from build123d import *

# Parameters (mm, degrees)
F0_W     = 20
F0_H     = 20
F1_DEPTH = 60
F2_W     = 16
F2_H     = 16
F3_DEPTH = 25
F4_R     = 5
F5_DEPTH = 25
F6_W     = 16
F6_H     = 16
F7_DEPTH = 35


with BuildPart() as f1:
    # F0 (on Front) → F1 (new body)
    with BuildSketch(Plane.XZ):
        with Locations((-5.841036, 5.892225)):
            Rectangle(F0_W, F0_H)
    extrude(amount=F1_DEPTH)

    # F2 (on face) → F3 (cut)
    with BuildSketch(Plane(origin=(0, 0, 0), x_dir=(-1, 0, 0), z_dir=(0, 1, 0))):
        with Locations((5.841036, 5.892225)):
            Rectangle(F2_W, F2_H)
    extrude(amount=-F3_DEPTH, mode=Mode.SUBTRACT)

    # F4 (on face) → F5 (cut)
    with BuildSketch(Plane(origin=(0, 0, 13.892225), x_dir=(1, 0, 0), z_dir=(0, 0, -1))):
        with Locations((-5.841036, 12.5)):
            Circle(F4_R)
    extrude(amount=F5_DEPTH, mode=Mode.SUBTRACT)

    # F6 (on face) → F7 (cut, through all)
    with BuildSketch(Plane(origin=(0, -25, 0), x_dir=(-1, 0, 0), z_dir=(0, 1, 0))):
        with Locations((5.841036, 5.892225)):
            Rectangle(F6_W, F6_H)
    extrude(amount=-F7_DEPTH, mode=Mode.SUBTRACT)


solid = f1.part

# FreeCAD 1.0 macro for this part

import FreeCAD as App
import Part
import Sketcher

V = App.Vector
Q = App.Units.Quantity


def add_polygon(sketch, points):
    """Adds a closed chain of lines whose ends are joined by coincident constraints."""
    first, n = sketch.GeometryCount, len(points)
    for a, b in zip(points, points[1:] + points[:1]):
        sketch.addGeometry(Part.LineSegment(App.Vector(*a, 0), App.Vector(*b, 0)), False)
    for i in range(n):
        sketch.addConstraint(Sketcher.Constraint("Coincident", first + i, 2, first + (i + 1) % n, 1))

doc = App.newDocument("Part")
body = doc.addObject("PartDesign::Body", "Body")

# Sketch on XZ plane
sketch1 = doc.addObject("Sketcher::SketchObject", "Sketch")
body.addObject(sketch1)
sketch1.AttachmentSupport = (doc.XZ_Plane, [""])
sketch1.MapMode = "FlatFace"
add_polygon(sketch1, [(-15.841036, 15.892225), (-15.841036, -4.107775), (4.158964, -4.107775), (4.158964, 15.892225)])  # lines 0-3
sketch1.addConstraint(Sketcher.Constraint("Vertical", 0))
sketch1.addConstraint(Sketcher.Constraint("Horizontal", 1))
sketch1.addConstraint(Sketcher.Constraint("Vertical", 2))
sketch1.addConstraint(Sketcher.Constraint("Horizontal", 3))
sketch1.addConstraint(Sketcher.Constraint("Equal", 3, 0))
sketch1.addConstraint(Sketcher.Constraint("DistanceX", 1, 1, 1, 2, Q("20 mm")))
sketch1.addConstraint(Sketcher.Constraint("DistanceX", 0, 2, -1, 1, Q("15.841036 mm")))
sketch1.addConstraint(Sketcher.Constraint("DistanceY", 0, 2, -1, 1, Q("4.107775 mm")))
pad1 = doc.addObject("PartDesign::Pad", "Pad")
body.addObject(pad1)
pad1.Profile = sketch1
pad1.Length = 60

# Sketch on XZ plane
sketch2 = doc.addObject("Sketcher::SketchObject", "Sketch001")
body.addObject(sketch2)
sketch2.AttachmentSupport = (doc.XZ_Plane, [""])
sketch2.MapMode = "FlatFace"
add_polygon(sketch2, [(2.158964, 13.892225), (2.158964, -2.107775), (-13.841036, -2.107775), (-13.841036, 13.892225)])  # lines 0-3
sketch2.addConstraint(Sketcher.Constraint("Vertical", 0))
sketch2.addConstraint(Sketcher.Constraint("Horizontal", 1))
sketch2.addConstraint(Sketcher.Constraint("Vertical", 2))
sketch2.addConstraint(Sketcher.Constraint("Horizontal", 3))
sketch2.addConstraint(Sketcher.Constraint("Equal", 3, 0))
sketch2.addConstraint(Sketcher.Constraint("DistanceX", 1, 2, 1, 1, Q("16 mm")))
sketch2.addConstraint(Sketcher.Constraint("DistanceX", -1, 1, 0, 2, Q("2.158964 mm")))
sketch2.addConstraint(Sketcher.Constraint("DistanceY", 0, 2, -1, 1, Q("2.107775 mm")))
pocket1 = doc.addObject("PartDesign::Pocket", "Pocket")
body.addObject(pocket1)
pocket1.Profile = sketch2
pocket1.Length = 25
pocket1.Reversed = True

# Sketch on XY plane
sketch3 = doc.addObject("Sketcher::SketchObject", "Sketch002")
body.addObject(sketch3)
sketch3.AttachmentSupport = (doc.XY_Plane, [""])
sketch3.MapMode = "FlatFace"
sketch3.AttachmentOffset = App.Placement(V(0, 0, 13.892225), App.Rotation())
sketch3.addGeometry(Part.Circle(V(-5.841036, -12.5, 0), V(0, 0, 1), 5), False)
sketch3.addConstraint(Sketcher.Constraint("Diameter", 0, Q("10 mm")))
sketch3.addConstraint(Sketcher.Constraint("DistanceY", 0, 3, -1, 1, Q("12.5 mm")))
sketch3.addConstraint(Sketcher.Constraint("DistanceX", 0, 3, -1, 1, Q("5.841036 mm")))
pocket2 = doc.addObject("PartDesign::Pocket", "Pocket001")
body.addObject(pocket2)
pocket2.Profile = sketch3
pocket2.Length = 25

# Sketch on XZ plane
sketch4 = doc.addObject("Sketcher::SketchObject", "Sketch003")
body.addObject(sketch4)
sketch4.AttachmentSupport = (doc.XZ_Plane, [""])
sketch4.MapMode = "FlatFace"
sketch4.AttachmentOffset = App.Placement(V(0, 0, 25), App.Rotation())
add_polygon(sketch4, [(2.158964, 13.892225), (2.158964, -2.107775), (-13.841036, -2.107775), (-13.841036, 13.892225)])  # lines 0-3
sketch4.addConstraint(Sketcher.Constraint("Vertical", 0))
sketch4.addConstraint(Sketcher.Constraint("Horizontal", 1))
sketch4.addConstraint(Sketcher.Constraint("Vertical", 2))
sketch4.addConstraint(Sketcher.Constraint("Horizontal", 3))
sketch4.addConstraint(Sketcher.Constraint("Equal", 3, 0))
sketch4.addConstraint(Sketcher.Constraint("DistanceX", 1, 2, 1, 1, Q("16 mm")))
sketch4.addConstraint(Sketcher.Constraint("DistanceX", -1, 1, 0, 2, Q("2.158964 mm")))
sketch4.addConstraint(Sketcher.Constraint("DistanceY", 0, 2, -1, 1, Q("2.107775 mm")))
pocket3 = doc.addObject("PartDesign::Pocket", "Pocket002")
body.addObject(pocket3)
pocket3.Profile = sketch4
pocket3.Type = "ThroughAll"
pocket3.Reversed = True

doc.recompute()
